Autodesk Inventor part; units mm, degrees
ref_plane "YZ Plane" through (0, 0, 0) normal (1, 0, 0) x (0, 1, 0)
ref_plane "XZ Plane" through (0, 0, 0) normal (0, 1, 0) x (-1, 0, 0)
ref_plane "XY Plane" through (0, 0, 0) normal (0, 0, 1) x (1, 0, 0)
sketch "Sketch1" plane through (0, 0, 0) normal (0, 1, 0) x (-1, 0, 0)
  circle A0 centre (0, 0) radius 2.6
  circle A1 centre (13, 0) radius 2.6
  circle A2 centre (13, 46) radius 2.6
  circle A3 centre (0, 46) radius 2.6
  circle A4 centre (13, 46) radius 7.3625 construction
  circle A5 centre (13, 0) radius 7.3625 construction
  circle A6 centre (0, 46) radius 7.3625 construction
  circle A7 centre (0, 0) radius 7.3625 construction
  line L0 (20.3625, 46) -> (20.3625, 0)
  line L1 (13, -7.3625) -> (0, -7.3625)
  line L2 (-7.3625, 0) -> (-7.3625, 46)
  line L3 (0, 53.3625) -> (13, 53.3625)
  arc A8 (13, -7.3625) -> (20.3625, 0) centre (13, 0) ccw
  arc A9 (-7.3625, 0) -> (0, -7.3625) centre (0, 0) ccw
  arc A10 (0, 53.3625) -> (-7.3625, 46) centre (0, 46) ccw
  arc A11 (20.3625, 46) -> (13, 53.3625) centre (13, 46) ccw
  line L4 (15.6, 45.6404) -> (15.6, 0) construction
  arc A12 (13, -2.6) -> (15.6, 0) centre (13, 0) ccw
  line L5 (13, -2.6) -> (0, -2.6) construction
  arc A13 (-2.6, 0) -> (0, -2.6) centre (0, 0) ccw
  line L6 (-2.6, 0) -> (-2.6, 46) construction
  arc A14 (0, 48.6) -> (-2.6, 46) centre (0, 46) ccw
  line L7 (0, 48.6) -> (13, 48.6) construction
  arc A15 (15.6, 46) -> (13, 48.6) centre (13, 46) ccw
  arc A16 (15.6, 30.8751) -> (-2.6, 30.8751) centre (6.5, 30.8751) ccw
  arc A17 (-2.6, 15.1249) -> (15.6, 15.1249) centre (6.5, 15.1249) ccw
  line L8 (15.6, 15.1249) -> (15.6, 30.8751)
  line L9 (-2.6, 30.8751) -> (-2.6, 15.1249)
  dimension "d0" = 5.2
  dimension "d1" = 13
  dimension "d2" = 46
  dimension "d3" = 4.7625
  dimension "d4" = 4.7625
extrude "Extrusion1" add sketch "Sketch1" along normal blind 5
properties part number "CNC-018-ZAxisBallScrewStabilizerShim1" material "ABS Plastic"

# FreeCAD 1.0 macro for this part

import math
import FreeCAD as App
import Part
import Sketcher
Q = App.Units.Quantity

doc = App.newDocument("Part")
body = doc.addObject("PartDesign::Body", "Body")

# Sketch on XZ plane
sketch1 = body.newObject("Sketcher::SketchObject", "Sketch")
sketch1.AttachmentSupport = (doc.getObject("XZ_Plane"), [""])
sketch1.MapMode = "FlatFace"
sketch1.addGeometry(Part.LineSegment(App.Vector(-20.4, 0, 0), App.Vector(-20.4, 46, 0)), False)
sketch1.addGeometry(Part.ArcOfCircle(Part.Circle(App.Vector(-13, 46, 0), App.Vector(0, 0, 1), 7.4), math.radians(90), math.radians(180)), False)
sketch1.addGeometry(Part.LineSegment(App.Vector(-13, 53.4, 0), App.Vector(0, 53.4, 0)), False)
sketch1.addGeometry(Part.ArcOfCircle(Part.Circle(App.Vector(0, 46, 0), App.Vector(0, 0, 1), 7.4), math.radians(0), math.radians(90)), False)
sketch1.addGeometry(Part.LineSegment(App.Vector(7.4, 46, 0), App.Vector(7.4, 0, 0)), False)
sketch1.addGeometry(Part.ArcOfCircle(Part.Circle(App.Vector(0, 0, 0), App.Vector(0, 0, 1), 7.4), math.radians(-90), math.radians(0)), False)
sketch1.addGeometry(Part.LineSegment(App.Vector(0, -7.4, 0), App.Vector(-13, -7.4, 0)), False)
sketch1.addGeometry(Part.ArcOfCircle(Part.Circle(App.Vector(-13, 0, 0), App.Vector(0, 0, 1), 7.4), math.radians(180), math.radians(270)), False)
sketch1.addGeometry(Part.Circle(App.Vector(0, 0, 0), App.Vector(0, 0, 1), 2.6), False)
sketch1.addGeometry(Part.Circle(App.Vector(-13, 0, 0), App.Vector(0, 0, 1), 2.6), False)
sketch1.addGeometry(Part.ArcOfCircle(Part.Circle(App.Vector(-6.5, 30.9, 0), App.Vector(0, 0, 1), 9.1), math.radians(0), math.radians(180)), False)
sketch1.addGeometry(Part.LineSegment(App.Vector(-15.6, 30.9, 0), App.Vector(-15.6, 15.1, 0)), False)
sketch1.addGeometry(Part.ArcOfCircle(Part.Circle(App.Vector(-6.5, 15.1, 0), App.Vector(0, 0, 1), 9.1), math.radians(180), math.radians(360)), False)
sketch1.addGeometry(Part.LineSegment(App.Vector(2.6, 15.1, 0), App.Vector(2.6, 30.9, 0)), False)
sketch1.addGeometry(Part.Circle(App.Vector(0, 46, 0), App.Vector(0, 0, 1), 2.6), False)
sketch1.addGeometry(Part.Circle(App.Vector(-13, 46, 0), App.Vector(0, 0, 1), 2.6), False)
sketch1.addConstraint(Sketcher.Constraint("Tangent", 0, 2, 1, 2))
sketch1.addConstraint(Sketcher.Constraint("Tangent", 1, 1, 2, 1))
sketch1.addConstraint(Sketcher.Constraint("Tangent", 2, 2, 3, 2))
sketch1.addConstraint(Sketcher.Constraint("Tangent", 3, 1, 4, 1))
sketch1.addConstraint(Sketcher.Constraint("Tangent", 4, 2, 5, 2))
sketch1.addConstraint(Sketcher.Constraint("Tangent", 5, 1, 6, 1))
sketch1.addConstraint(Sketcher.Constraint("Tangent", 6, 2, 7, 2))
sketch1.addConstraint(Sketcher.Constraint("Tangent", 7, 1, 0, 1))
sketch1.addConstraint(Sketcher.Constraint("Tangent", 10, 2, 11, 1))
sketch1.addConstraint(Sketcher.Constraint("Tangent", 11, 2, 12, 1))
sketch1.addConstraint(Sketcher.Constraint("Tangent", 12, 2, 13, 1))
sketch1.addConstraint(Sketcher.Constraint("Tangent", 13, 2, 10, 1))
sketch1.addConstraint(Sketcher.Constraint("Vertical", 0))
sketch1.addConstraint(Sketcher.Constraint("Horizontal", 2))
sketch1.addConstraint(Sketcher.Constraint("Vertical", 4))
sketch1.addConstraint(Sketcher.Constraint("Horizontal", 6))
sketch1.addConstraint(Sketcher.Constraint("Vertical", 11))
sketch1.addConstraint(Sketcher.Constraint("Vertical", 13))
sketch1.addConstraint(Sketcher.Constraint("Coincident", 5, 3, -1, 1))
sketch1.addConstraint(Sketcher.Constraint("Coincident", 8, 3, -1, 1))
sketch1.addConstraint(Sketcher.Constraint("Coincident", 9, 3, 7, 3))
sketch1.addConstraint(Sketcher.Constraint("Coincident", 14, 3, 3, 3))
sketch1.addConstraint(Sketcher.Constraint("Coincident", 15, 3, 1, 3))
sketch1.addConstraint(Sketcher.Constraint("Equal", 1, 3))
sketch1.addConstraint(Sketcher.Constraint("Equal", 3, 5))
sketch1.addConstraint(Sketcher.Constraint("Equal", 5, 7))
sketch1.addConstraint(Sketcher.Constraint("Equal", 8, 9))
sketch1.addConstraint(Sketcher.Constraint("Equal", 9, 14))
sketch1.addConstraint(Sketcher.Constraint("Equal", 14, 15))
sketch1.addConstraint(Sketcher.Constraint("Diameter", 8, Q("5.2 mm")))
sketch1.addConstraint(Sketcher.Constraint("DistanceX", 2, 1, 2, 2, Q("13 mm")))
sketch1.addConstraint(Sketcher.Constraint("DistanceY", 0, 1, 0, 2, Q("46 mm")))
sketch1.addConstraint(Sketcher.Constraint("Radius", 10, Q("9.1 mm")))
sketch1.addConstraint(Sketcher.Constraint("DistanceX", 10, 3, -1, 1, Q("6.5 mm")))
sketch1.addConstraint(Sketcher.Constraint("Radius", 1, Q("7.3625 mm")))
sketch1.addConstraint(Sketcher.Constraint("DistanceY", 11, 2, 11, 1, Q("15.7502 mm")))
sketch1.addConstraint(Sketcher.Constraint("DistanceY", -1, 1, 10, 3, Q("30.875 mm")))
pad1 = body.newObject("PartDesign::Pad", "Pad")
pad1.Profile = sketch1
pad1.Length = 5
pad1.Reversed = True

doc.recompute()
